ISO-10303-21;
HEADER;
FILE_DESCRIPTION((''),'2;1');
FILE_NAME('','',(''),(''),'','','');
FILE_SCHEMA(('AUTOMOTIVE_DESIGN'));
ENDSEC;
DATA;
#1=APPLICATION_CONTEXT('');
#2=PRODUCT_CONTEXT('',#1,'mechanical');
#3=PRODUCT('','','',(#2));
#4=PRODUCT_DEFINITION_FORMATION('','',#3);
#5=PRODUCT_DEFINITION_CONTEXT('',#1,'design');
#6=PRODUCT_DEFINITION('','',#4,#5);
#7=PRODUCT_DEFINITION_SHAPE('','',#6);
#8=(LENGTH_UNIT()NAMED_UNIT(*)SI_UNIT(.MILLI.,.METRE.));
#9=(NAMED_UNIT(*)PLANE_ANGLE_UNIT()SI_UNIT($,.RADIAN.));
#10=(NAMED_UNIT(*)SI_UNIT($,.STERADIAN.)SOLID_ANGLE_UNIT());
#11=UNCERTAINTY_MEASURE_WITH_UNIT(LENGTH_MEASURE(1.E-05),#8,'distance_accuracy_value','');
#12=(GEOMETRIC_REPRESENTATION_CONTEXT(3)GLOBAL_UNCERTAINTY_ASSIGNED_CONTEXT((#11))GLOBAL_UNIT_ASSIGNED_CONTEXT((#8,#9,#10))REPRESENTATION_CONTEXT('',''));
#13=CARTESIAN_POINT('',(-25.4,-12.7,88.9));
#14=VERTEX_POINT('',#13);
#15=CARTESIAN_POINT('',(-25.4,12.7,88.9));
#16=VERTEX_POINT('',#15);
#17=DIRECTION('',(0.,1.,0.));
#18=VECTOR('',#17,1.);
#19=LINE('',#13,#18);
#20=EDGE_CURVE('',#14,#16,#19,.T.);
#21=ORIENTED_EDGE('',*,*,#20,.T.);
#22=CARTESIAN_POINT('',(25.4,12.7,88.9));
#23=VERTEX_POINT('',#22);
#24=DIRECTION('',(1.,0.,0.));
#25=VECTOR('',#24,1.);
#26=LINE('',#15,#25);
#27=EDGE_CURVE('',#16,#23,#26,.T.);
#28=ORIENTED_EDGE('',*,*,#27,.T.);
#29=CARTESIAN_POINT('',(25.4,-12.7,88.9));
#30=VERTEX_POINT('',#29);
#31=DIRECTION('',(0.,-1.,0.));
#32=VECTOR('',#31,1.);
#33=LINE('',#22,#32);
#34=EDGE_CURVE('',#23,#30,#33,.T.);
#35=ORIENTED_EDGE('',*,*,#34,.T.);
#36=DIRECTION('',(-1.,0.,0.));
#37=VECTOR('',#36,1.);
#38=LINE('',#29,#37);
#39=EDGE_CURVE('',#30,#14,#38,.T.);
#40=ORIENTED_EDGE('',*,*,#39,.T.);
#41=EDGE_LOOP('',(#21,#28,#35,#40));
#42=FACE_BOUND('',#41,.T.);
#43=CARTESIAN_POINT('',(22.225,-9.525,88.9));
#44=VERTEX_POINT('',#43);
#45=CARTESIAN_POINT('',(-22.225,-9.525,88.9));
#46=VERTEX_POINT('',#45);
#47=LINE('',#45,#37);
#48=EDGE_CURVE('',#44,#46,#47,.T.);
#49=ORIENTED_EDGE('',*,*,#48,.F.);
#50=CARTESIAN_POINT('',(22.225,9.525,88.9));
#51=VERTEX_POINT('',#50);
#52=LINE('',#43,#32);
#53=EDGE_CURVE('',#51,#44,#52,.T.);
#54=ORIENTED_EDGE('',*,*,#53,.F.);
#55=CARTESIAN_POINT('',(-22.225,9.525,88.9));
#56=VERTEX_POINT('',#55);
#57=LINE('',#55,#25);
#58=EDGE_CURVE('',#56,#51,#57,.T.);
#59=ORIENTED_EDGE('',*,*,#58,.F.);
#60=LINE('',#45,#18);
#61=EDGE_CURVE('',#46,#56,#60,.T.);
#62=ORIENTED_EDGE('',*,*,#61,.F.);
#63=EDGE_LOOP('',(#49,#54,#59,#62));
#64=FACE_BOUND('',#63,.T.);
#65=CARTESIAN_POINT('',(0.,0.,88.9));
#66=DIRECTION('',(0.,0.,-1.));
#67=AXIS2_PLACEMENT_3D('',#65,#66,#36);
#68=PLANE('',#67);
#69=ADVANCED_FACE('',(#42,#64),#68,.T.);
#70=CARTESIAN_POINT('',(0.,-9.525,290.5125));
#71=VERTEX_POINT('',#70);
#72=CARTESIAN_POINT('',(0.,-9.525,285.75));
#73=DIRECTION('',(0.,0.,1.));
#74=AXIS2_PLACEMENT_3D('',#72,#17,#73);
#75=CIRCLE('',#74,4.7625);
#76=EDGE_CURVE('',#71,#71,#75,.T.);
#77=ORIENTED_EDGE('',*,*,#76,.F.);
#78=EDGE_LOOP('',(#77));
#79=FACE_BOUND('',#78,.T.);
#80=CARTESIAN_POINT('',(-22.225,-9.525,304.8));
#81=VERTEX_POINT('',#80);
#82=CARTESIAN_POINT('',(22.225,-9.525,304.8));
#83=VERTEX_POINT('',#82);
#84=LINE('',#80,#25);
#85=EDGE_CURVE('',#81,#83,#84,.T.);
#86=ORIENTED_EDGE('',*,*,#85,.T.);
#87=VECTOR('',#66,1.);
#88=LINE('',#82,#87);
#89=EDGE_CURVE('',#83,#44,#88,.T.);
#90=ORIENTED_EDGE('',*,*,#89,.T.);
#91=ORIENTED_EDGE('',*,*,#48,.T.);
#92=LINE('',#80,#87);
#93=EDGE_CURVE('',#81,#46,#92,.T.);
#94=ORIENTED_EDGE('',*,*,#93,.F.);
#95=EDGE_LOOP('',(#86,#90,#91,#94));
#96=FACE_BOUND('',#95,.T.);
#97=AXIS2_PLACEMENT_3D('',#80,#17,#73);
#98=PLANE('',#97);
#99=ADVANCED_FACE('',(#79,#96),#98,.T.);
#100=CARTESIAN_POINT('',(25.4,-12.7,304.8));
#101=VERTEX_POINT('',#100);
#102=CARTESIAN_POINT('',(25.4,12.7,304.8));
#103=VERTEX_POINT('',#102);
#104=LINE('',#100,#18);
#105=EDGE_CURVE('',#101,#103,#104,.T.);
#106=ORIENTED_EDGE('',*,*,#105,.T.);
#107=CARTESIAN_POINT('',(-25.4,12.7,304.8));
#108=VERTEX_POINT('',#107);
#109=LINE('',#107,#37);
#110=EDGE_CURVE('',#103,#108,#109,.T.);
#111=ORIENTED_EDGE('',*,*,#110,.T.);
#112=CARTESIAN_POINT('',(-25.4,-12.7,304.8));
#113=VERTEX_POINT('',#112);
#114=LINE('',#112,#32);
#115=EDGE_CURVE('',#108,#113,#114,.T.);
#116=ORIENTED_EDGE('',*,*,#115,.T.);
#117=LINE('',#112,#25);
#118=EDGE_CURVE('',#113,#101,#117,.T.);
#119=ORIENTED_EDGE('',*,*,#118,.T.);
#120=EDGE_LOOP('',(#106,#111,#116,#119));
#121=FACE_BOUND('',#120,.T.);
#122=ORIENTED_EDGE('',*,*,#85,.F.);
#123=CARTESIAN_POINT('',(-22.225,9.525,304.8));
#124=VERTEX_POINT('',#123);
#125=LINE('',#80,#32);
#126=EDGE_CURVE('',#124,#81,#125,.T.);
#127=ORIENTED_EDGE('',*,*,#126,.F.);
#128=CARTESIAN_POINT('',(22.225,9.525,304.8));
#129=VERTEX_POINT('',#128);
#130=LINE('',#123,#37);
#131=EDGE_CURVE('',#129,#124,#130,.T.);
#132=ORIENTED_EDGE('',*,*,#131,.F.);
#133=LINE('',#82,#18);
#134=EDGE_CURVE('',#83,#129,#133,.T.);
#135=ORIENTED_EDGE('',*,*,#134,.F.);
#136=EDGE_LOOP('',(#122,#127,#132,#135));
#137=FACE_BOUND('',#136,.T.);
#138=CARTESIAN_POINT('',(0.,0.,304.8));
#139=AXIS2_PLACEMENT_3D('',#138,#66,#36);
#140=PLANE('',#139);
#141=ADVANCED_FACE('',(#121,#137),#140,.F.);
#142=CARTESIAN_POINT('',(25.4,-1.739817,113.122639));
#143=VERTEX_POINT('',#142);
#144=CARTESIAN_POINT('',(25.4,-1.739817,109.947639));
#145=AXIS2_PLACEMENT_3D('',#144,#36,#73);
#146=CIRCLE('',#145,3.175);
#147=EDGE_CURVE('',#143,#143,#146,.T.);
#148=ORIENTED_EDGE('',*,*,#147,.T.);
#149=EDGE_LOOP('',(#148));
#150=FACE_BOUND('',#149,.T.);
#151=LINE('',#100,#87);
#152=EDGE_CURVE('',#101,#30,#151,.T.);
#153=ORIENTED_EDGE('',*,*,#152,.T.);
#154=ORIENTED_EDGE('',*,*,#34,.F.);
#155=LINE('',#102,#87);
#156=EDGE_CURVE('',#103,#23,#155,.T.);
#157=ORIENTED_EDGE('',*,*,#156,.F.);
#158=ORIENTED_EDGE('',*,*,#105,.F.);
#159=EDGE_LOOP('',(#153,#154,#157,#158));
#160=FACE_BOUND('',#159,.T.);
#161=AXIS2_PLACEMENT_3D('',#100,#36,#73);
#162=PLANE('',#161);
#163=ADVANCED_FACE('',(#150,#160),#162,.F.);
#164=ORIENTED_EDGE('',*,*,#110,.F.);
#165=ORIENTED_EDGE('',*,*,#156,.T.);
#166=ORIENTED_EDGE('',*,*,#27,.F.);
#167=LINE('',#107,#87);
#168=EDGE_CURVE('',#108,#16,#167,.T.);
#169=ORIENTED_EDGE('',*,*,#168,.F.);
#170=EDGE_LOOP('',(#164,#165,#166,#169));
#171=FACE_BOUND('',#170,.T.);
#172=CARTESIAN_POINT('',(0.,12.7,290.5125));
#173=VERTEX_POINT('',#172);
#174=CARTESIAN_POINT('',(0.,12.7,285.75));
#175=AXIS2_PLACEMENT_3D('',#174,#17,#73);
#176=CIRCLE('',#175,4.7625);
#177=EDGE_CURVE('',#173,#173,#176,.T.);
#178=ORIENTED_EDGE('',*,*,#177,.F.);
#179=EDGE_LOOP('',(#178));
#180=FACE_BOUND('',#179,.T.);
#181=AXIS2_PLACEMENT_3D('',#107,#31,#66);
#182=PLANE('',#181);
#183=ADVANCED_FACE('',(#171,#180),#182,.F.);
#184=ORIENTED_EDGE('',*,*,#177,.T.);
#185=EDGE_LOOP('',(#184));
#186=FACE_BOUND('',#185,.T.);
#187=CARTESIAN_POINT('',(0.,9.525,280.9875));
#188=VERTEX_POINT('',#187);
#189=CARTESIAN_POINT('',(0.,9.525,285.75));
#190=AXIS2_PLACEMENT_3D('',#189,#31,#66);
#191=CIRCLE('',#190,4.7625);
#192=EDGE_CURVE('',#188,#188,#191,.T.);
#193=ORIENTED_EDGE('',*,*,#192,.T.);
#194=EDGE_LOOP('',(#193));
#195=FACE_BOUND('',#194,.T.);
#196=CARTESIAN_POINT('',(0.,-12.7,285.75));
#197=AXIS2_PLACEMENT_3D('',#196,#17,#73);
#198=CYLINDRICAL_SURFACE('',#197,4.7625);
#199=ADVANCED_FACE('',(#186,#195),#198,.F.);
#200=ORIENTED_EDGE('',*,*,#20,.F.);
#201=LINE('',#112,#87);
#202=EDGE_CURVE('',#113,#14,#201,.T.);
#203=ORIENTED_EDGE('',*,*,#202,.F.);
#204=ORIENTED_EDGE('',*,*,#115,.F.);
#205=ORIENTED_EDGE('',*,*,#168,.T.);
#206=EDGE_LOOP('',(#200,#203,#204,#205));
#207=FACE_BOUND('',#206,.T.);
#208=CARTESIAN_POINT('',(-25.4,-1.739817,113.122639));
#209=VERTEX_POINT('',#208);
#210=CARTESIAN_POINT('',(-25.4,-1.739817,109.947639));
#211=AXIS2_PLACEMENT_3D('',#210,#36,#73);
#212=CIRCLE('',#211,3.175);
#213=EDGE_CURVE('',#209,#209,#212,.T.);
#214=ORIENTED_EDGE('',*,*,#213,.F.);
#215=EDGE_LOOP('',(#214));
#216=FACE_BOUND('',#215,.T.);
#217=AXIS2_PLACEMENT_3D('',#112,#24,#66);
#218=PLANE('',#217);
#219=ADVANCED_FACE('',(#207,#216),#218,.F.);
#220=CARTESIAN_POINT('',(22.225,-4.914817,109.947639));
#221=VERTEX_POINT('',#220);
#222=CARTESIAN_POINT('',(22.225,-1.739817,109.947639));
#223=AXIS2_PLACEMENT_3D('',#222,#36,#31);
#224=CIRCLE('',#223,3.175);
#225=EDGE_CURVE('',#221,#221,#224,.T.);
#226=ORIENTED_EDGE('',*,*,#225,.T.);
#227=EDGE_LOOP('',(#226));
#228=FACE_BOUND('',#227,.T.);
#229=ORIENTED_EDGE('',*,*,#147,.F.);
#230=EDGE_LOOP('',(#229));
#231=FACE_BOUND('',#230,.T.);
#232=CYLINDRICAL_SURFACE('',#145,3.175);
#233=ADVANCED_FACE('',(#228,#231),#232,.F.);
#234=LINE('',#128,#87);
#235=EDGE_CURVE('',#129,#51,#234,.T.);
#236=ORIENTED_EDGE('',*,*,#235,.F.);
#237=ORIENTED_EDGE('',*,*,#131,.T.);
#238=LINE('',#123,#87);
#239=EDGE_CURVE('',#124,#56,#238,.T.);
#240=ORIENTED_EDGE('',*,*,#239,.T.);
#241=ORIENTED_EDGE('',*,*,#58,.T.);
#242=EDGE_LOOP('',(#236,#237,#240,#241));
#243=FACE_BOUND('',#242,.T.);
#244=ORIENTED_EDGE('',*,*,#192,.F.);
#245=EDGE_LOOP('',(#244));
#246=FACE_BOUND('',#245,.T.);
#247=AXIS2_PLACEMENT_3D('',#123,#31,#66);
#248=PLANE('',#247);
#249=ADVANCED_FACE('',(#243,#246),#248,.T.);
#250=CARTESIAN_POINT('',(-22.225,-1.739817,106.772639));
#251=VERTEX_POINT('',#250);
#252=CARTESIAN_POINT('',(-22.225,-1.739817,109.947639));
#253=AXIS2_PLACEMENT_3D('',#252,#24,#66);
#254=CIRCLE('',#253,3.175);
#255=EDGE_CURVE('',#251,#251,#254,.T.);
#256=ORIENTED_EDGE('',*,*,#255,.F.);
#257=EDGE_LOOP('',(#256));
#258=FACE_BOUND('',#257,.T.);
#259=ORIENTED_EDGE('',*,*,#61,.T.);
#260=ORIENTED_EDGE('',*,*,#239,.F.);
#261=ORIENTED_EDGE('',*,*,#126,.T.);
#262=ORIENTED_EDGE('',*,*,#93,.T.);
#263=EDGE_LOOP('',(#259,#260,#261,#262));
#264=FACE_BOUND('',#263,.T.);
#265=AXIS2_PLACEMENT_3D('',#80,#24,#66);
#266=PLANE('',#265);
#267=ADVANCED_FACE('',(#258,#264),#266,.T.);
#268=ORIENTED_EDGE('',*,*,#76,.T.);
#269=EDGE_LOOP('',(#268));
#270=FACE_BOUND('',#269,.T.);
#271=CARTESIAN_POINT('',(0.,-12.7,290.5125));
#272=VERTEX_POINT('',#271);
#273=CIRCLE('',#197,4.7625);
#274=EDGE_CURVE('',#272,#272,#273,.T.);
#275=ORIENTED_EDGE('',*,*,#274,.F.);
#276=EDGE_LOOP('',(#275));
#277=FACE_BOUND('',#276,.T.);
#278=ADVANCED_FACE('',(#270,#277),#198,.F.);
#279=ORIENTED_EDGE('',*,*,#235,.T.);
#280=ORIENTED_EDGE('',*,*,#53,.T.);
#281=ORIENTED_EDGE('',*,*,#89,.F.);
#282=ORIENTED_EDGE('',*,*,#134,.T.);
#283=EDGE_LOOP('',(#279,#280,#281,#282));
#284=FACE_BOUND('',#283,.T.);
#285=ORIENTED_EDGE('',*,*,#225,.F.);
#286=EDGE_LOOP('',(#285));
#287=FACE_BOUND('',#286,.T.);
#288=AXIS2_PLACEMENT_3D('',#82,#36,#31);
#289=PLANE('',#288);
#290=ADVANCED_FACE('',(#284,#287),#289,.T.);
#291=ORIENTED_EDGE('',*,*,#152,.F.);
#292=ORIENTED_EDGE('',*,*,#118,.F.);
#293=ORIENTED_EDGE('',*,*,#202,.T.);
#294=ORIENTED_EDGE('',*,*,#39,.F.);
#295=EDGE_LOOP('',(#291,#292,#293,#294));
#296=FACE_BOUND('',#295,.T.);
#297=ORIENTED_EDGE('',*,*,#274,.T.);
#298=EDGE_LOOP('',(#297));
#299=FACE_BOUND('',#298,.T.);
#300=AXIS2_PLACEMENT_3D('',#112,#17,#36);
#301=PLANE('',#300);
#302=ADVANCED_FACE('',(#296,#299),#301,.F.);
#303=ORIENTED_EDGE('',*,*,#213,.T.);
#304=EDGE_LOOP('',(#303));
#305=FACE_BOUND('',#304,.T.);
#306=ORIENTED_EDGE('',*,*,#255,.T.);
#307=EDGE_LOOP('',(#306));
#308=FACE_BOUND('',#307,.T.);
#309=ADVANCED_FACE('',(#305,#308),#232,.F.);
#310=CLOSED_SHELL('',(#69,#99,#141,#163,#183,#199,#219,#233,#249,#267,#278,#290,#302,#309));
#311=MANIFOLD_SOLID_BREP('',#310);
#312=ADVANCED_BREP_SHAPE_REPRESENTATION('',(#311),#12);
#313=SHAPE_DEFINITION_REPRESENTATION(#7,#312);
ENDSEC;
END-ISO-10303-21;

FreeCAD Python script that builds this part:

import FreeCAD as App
import Part
import Sketcher
Q = App.Units.Quantity

doc = App.newDocument("Part")
body = doc.addObject("PartDesign::Body", "Body")

# Sketch on XY plane
sketch1 = body.newObject("Sketcher::SketchObject", "Sketch")
sketch1.AttachmentSupport = (doc.getObject("XY_Plane"), [""])
sketch1.MapMode = "FlatFace"
sketch1.addGeometry(Part.LineSegment(App.Vector(-25.4, 12.7, 0), App.Vector(-25.4, -12.7, 0)), False)
sketch1.addGeometry(Part.LineSegment(App.Vector(-25.4, -12.7, 0), App.Vector(25.4, -12.7, 0)), False)
sketch1.addGeometry(Part.LineSegment(App.Vector(25.4, -12.7, 0), App.Vector(25.4, 12.7, 0)), False)
sketch1.addGeometry(Part.LineSegment(App.Vector(25.4, 12.7, 0), App.Vector(-25.4, 12.7, 0)), False)
sketch1.addGeometry(Part.LineSegment(App.Vector(22.225, -9.525, 0), App.Vector(-22.225, -9.525, 0)), False)
sketch1.addGeometry(Part.LineSegment(App.Vector(-22.225, -9.525, 0), App.Vector(-22.225, 9.525, 0)), False)
sketch1.addGeometry(Part.LineSegment(App.Vector(-22.225, 9.525, 0), App.Vector(22.225, 9.525, 0)), False)
sketch1.addGeometry(Part.LineSegment(App.Vector(22.225, 9.525, 0), App.Vector(22.225, -9.525, 0)), False)
sketch1.addConstraint(Sketcher.Constraint("Coincident", 0, 2, 1, 1))
sketch1.addConstraint(Sketcher.Constraint("Coincident", 1, 2, 2, 1))
sketch1.addConstraint(Sketcher.Constraint("Coincident", 2, 2, 3, 1))
sketch1.addConstraint(Sketcher.Constraint("Coincident", 3, 2, 0, 1))
sketch1.addConstraint(Sketcher.Constraint("Coincident", 4, 2, 5, 1))
sketch1.addConstraint(Sketcher.Constraint("Coincident", 5, 2, 6, 1))
sketch1.addConstraint(Sketcher.Constraint("Coincident", 6, 2, 7, 1))
sketch1.addConstraint(Sketcher.Constraint("Coincident", 7, 2, 4, 1))
sketch1.addConstraint(Sketcher.Constraint("Vertical", 0))
sketch1.addConstraint(Sketcher.Constraint("Horizontal", 1))
sketch1.addConstraint(Sketcher.Constraint("Vertical", 2))
sketch1.addConstraint(Sketcher.Constraint("Horizontal", 3))
sketch1.addConstraint(Sketcher.Constraint("Horizontal", 4))
sketch1.addConstraint(Sketcher.Constraint("Vertical", 5))
sketch1.addConstraint(Sketcher.Constraint("Horizontal", 6))
sketch1.addConstraint(Sketcher.Constraint("Vertical", 7))
sketch1.addConstraint(Sketcher.Constraint("Symmetric", 0, 2, 2, 2, -1, 1))
sketch1.addConstraint(Sketcher.Constraint("Symmetric", 4, 2, 6, 2, -1, 1))
sketch1.addConstraint(Sketcher.Constraint("DistanceX", 1, 1, 1, 2, Q("2 in")))
sketch1.addConstraint(Sketcher.Constraint("DistanceY", 0, 2, 0, 1, Q("1 in")))
sketch1.addConstraint(Sketcher.Constraint("DistanceX", 4, 2, 4, 1, Q("1.75 in")))
sketch1.addConstraint(Sketcher.Constraint("DistanceY", 5, 1, 5, 2, Q("0.75 in")))
pad1 = body.newObject("PartDesign::Pad", "Pad")
pad1.Profile = sketch1
pad1.Length = Q("12 in")

# Sketch on XZ plane
sketch2 = body.newObject("Sketcher::SketchObject", "Sketch001")
sketch2.AttachmentSupport = (doc.getObject("XZ_Plane"), [""])
sketch2.MapMode = "FlatFace"
sketch2.AttachmentOffset = App.Placement(App.Vector(0, 0, -0.5 * 25.4), App.Rotation())
sketch2.addGeometry(Part.Circle(App.Vector(0, 285.75, 0), App.Vector(0, 0, 1), 4.7625), False)
sketch2.addConstraint(Sketcher.Constraint("PointOnObject", 0, 3, -2))
sketch2.addConstraint(Sketcher.Constraint("Diameter", 0, Q("0.375 in")))
sketch2.addConstraint(Sketcher.Constraint("DistanceY", -1, 1, 0, 3, Q("11.25 in")))
pocket1 = body.newObject("PartDesign::Pocket", "Pocket")
pocket1.Profile = sketch2
pocket1.Type = "ThroughAll"
pocket1.Reversed = True

# Sketch on YZ plane
sketch3 = body.newObject("Sketcher::SketchObject", "Sketch002")
sketch3.AttachmentSupport = (doc.getObject("YZ_Plane"), [""])
sketch3.MapMode = "FlatFace"
sketch3.AttachmentOffset = App.Placement(App.Vector(0, 0, -1 * 25.4), App.Rotation())
sketch3.addGeometry(Part.Circle(App.Vector(-1.739817, 109.947639, 0), App.Vector(0, 0, 1), 3.175), False)
sketch3.addConstraint(Sketcher.Constraint("Diameter", 0, Q("0.25 in")))
sketch3.addConstraint(Sketcher.Constraint("DistanceY", -1, 1, 0, 3, Q("109.947639 mm")))
sketch3.addConstraint(Sketcher.Constraint("DistanceX", 0, 3, -1, 1, Q("1.739817 mm")))
pocket2 = body.newObject("PartDesign::Pocket", "Pocket001")
pocket2.Profile = sketch3
pocket2.Type = "ThroughAll"
pocket2.Reversed = True

# Sketch on XY plane
sketch4 = body.newObject("Sketcher::SketchObject", "Sketch003")
sketch4.AttachmentSupport = (doc.getObject("XY_Plane"), [""])
sketch4.MapMode = "FlatFace"
sketch4.addGeometry(Part.LineSegment(App.Vector(25.4, 12.7, 0), App.Vector(25.4, -12.7, 0)), False)
sketch4.addGeometry(Part.LineSegment(App.Vector(25.4, -12.7, 0), App.Vector(-25.4, -12.7, 0)), False)
sketch4.addGeometry(Part.LineSegment(App.Vector(-25.4, -12.7, 0), App.Vector(-25.4, 12.7, 0)), False)
sketch4.addGeometry(Part.LineSegment(App.Vector(-25.4, 12.7, 0), App.Vector(25.4, 12.7, 0)), False)
sketch4.addConstraint(Sketcher.Constraint("Coincident", 0, 2, 1, 1))
sketch4.addConstraint(Sketcher.Constraint("Coincident", 1, 2, 2, 1))
sketch4.addConstraint(Sketcher.Constraint("Coincident", 2, 2, 3, 1))
sketch4.addConstraint(Sketcher.Constraint("Coincident", 3, 2, 0, 1))
sketch4.addConstraint(Sketcher.Constraint("Vertical", 0))
sketch4.addConstraint(Sketcher.Constraint("Horizontal", 1))
sketch4.addConstraint(Sketcher.Constraint("Vertical", 2))
sketch4.addConstraint(Sketcher.Constraint("Horizontal", 3))
sketch4.addConstraint(Sketcher.Constraint("Symmetric", 0, 2, 2, 2, -1, 1))
sketch4.addConstraint(Sketcher.Constraint("DistanceX", 1, 2, 1, 1, Q("2 in")))
sketch4.addConstraint(Sketcher.Constraint("DistanceY", 0, 2, 0, 1, Q("1 in")))
pocket3 = body.newObject("PartDesign::Pocket", "Pocket002")
pocket3.Profile = sketch4
pocket3.Length = Q("3.5 in")
pocket3.Reversed = True

doc.recompute()
